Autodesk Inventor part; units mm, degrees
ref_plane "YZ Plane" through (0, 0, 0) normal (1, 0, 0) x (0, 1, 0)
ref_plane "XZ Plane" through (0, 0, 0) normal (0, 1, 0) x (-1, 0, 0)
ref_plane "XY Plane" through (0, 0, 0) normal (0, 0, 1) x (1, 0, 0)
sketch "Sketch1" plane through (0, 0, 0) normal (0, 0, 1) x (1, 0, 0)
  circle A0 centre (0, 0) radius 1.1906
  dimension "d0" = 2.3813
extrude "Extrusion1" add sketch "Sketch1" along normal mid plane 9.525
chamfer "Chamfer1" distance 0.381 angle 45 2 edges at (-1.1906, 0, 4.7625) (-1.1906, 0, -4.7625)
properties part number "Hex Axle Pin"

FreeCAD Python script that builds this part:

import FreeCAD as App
import Part
import Sketcher
from FreeCAD import Vector
Q = App.Units.Quantity


def edges_at(feature, points):
    """Names of the edges that pass closest to the given points."""
    edges = feature.Shape.Edges
    near = lambda p: min(range(len(edges)), key=lambda i: edges[i].distToShape(Part.Vertex(*p))[0])
    return sorted({f"Edge{near(p) + 1}" for p in points})

doc = App.newDocument("Part")
body = doc.addObject("PartDesign::Body", "Body")

# Sketch on XY plane
sketch1 = body.newObject("Sketcher::SketchObject", "Sketch")
sketch1.AttachmentSupport = (doc.getObject("XY_Plane"), [""])
sketch1.MapMode = "FlatFace"
sketch1.addGeometry(Part.Circle(Vector(0, 0, 0), Vector(0, 0, 1), 1.2), False)
sketch1.addConstraint(Sketcher.Constraint("Coincident", 0, 3, -1, 1))
sketch1.addConstraint(Sketcher.Constraint("Diameter", 0, Q("0.093748 in")))
pad1 = body.newObject("PartDesign::Pad", "Pad")
pad1.Profile = sketch1
pad1.Length = Q("0.375 in")
pad1.Midplane = True
doc.recompute()

chamfer = body.newObject("PartDesign::Chamfer", "Chamfer")
chamfer.Base = (pad1, edges_at(pad1, [(-1.191, 0, 4.763), (-1.191, 0, -4.763)]))
chamfer.Size = Q("0.015 in")

doc.recompute()
